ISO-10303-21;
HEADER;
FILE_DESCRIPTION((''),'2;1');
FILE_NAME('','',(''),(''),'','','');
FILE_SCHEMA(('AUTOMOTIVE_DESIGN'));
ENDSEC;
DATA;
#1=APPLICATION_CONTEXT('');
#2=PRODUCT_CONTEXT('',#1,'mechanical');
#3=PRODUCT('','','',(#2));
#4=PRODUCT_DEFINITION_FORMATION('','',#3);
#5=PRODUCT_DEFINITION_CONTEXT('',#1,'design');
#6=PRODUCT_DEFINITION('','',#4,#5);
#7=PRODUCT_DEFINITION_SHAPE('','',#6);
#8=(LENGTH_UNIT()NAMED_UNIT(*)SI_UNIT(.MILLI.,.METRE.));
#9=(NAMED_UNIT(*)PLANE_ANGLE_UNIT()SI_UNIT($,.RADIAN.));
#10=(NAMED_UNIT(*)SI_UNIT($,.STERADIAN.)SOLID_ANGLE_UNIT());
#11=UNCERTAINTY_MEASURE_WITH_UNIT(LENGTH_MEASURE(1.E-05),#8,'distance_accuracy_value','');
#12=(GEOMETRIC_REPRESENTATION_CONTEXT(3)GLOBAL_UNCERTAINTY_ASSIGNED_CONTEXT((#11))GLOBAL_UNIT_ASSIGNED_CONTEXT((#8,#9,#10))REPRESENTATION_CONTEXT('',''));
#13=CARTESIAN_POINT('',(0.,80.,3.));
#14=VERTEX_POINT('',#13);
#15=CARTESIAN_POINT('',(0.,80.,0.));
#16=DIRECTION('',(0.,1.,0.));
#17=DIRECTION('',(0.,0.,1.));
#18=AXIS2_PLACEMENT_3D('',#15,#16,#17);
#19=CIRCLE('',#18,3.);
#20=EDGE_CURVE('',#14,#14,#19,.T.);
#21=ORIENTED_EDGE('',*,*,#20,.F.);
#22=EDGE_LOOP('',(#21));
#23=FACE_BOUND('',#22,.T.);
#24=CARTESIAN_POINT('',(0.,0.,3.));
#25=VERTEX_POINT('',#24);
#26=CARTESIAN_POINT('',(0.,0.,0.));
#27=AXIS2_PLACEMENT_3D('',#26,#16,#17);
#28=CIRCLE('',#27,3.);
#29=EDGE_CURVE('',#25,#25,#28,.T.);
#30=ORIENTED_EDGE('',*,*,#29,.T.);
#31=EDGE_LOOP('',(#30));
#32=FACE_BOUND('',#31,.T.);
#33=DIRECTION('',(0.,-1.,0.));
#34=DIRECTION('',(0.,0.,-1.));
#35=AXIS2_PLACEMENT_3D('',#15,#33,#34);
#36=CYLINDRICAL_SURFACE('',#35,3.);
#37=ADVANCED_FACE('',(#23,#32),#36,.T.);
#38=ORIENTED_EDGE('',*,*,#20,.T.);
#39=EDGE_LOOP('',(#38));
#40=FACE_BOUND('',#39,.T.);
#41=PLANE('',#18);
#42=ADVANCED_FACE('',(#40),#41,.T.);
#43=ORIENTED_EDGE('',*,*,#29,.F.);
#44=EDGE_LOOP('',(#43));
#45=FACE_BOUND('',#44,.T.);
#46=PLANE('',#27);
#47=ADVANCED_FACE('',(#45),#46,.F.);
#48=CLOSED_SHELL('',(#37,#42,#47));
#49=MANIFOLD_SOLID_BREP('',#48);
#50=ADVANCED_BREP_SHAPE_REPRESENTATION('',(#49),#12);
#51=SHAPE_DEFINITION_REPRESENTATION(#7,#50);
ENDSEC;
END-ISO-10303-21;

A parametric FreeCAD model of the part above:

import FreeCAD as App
import Part
import Sketcher

doc = App.newDocument("Part")
body = doc.addObject("PartDesign::Body", "Body")

# Sketch on XZ plane
sketch1 = body.newObject("Sketcher::SketchObject", "Sketch")
sketch1.AttachmentSupport = (doc.getObject("XZ_Plane"), [""])
sketch1.MapMode = "FlatFace"
sketch1.addGeometry(Part.Circle(App.Vector(0, 0, 0), App.Vector(0, 0, 1), 3), False)
sketch1.addConstraint([
    Sketcher.Constraint("Coincident", 0, 3, -1, 1),
    Sketcher.Constraint("Diameter", 0, 6.0),
])
pad1 = body.newObject("PartDesign::Pad", "Pad")
pad1.Profile = sketch1
pad1.Length = 80
pad1.Reversed = True

doc.recompute()
